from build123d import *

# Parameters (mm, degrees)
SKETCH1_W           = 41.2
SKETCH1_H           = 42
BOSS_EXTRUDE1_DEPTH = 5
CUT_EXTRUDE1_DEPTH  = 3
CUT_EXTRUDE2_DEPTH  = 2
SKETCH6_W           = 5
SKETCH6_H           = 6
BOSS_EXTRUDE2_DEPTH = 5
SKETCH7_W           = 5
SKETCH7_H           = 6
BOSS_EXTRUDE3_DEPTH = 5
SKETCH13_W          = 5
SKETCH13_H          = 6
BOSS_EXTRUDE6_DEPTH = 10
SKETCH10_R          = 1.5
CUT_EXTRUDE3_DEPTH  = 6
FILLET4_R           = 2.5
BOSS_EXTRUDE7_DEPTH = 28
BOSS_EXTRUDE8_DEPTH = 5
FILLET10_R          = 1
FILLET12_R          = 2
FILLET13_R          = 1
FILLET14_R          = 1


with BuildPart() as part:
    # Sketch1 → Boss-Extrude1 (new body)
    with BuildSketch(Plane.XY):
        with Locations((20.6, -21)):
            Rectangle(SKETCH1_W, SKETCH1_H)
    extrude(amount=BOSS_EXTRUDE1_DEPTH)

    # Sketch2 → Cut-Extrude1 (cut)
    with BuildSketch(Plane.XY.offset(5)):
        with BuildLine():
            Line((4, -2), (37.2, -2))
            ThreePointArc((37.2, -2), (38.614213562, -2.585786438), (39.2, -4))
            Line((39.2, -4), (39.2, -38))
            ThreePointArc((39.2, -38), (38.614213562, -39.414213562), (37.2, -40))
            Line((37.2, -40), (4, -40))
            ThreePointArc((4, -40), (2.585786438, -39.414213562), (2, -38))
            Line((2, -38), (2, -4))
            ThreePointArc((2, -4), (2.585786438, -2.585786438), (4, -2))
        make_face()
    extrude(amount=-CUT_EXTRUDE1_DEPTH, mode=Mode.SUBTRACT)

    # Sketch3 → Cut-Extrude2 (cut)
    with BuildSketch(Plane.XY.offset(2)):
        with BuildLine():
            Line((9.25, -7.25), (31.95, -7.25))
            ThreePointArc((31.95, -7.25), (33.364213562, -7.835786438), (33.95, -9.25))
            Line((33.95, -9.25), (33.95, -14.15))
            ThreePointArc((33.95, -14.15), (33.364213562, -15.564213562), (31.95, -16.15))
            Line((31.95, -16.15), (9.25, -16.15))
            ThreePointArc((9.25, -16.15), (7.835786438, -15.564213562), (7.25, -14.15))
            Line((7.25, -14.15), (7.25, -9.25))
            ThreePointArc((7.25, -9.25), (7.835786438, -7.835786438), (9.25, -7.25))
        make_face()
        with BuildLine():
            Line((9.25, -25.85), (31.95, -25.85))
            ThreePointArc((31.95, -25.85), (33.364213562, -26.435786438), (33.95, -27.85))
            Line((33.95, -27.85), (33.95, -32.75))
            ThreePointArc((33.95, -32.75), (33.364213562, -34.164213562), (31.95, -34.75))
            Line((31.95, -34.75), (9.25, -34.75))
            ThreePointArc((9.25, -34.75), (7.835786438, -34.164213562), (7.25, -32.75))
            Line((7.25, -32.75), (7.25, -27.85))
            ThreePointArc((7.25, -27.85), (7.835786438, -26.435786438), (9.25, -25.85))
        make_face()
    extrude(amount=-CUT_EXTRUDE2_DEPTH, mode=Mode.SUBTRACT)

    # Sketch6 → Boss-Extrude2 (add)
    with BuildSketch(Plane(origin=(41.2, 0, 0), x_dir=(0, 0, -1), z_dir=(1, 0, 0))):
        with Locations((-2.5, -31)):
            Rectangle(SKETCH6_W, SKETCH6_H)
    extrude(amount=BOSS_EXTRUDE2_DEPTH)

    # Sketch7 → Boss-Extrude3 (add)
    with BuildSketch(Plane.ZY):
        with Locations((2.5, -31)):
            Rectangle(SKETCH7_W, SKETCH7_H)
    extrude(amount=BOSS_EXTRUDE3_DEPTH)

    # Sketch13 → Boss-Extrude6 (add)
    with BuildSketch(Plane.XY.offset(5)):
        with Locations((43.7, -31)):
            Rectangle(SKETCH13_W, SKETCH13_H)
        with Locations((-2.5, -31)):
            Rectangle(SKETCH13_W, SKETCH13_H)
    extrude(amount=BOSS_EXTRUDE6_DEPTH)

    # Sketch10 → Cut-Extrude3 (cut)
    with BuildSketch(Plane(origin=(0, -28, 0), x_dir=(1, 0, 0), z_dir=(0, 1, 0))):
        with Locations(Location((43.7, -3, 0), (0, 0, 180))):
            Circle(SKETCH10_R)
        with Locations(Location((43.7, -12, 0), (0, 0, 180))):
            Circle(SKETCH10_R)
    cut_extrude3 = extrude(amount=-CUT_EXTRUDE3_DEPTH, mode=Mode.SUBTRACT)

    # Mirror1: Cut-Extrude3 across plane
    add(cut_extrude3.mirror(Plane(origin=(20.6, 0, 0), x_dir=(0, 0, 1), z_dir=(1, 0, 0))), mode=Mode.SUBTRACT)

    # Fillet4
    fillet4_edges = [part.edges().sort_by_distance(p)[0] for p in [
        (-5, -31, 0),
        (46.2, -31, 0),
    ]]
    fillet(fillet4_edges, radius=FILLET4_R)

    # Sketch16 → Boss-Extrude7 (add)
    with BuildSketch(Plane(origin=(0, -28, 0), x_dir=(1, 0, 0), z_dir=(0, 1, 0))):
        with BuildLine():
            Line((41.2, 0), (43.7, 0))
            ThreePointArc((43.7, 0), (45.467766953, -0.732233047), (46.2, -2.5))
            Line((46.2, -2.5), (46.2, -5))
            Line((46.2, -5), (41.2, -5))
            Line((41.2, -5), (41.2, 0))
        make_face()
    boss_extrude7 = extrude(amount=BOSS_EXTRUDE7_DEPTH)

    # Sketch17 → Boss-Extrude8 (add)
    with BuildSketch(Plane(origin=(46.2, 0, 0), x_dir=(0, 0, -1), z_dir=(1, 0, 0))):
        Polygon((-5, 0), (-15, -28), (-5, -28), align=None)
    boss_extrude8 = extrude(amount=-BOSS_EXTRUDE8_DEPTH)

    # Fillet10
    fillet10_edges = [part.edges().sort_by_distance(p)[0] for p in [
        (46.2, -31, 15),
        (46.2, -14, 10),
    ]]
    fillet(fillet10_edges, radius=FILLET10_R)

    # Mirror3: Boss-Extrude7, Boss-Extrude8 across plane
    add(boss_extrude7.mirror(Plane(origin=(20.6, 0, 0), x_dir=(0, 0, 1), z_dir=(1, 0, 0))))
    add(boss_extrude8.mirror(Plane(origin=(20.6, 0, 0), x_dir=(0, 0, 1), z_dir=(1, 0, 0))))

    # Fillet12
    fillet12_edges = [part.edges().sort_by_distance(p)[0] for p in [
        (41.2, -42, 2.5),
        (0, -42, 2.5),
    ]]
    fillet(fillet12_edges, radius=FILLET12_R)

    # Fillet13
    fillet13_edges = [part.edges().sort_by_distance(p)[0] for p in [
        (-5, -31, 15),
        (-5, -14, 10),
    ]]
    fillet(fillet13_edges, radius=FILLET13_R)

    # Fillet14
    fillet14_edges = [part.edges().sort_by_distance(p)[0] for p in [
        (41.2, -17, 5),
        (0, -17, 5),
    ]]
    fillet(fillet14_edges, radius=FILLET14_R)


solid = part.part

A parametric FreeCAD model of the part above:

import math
import FreeCAD as App
import Part
import Sketcher

V = App.Vector
Q = App.Units.Quantity


def edges_at(feature, points):
    """Names of the edges that pass closest to the given points."""
    edges = feature.Shape.Edges
    near = lambda p: min(range(len(edges)), key=lambda i: edges[i].distToShape(Part.Vertex(*p))[0])
    return sorted({f"Edge{near(p) + 1}" for p in points})

doc = App.newDocument("Part")
body = doc.addObject("PartDesign::Body", "Body")

sketch1 = body.newObject("Sketcher::SketchObject", "Sketch")
sketch1.AttachmentSupport = (doc.getObject("XY_Plane"), [""])
sketch1.MapMode = "FlatFace"
sketch1.addGeometry([
    Part.LineSegment(V(0, 0, 0), V(0, -42, 0)),
    Part.LineSegment(V(0, -42, 0), V(41, -42, 0)),
    Part.LineSegment(V(41, -42, 0), V(41, 0, 0)),
    Part.LineSegment(V(41, 0, 0), V(0, 0, 0)),
], False)
sketch1.addConstraint([
    Sketcher.Constraint("Coincident", 0, 2, 1, 1),
    Sketcher.Constraint("Coincident", 1, 2, 2, 1),
    Sketcher.Constraint("Coincident", 2, 2, 3, 1),
    Sketcher.Constraint("Coincident", 3, 2, 0, 1),
    Sketcher.Constraint("Vertical", 0),
    Sketcher.Constraint("Horizontal", 1),
    Sketcher.Constraint("Vertical", 2),
    Sketcher.Constraint("Horizontal", 3),
    Sketcher.Constraint("Coincident", 3, 2, -1, 1),
    Sketcher.Constraint("DistanceY", 0, 2, 0, 1, Q("42 mm")),
    Sketcher.Constraint("DistanceX", 1, 1, 1, 2, Q("41.2 mm")),
])
pad1 = body.newObject("PartDesign::Pad", "Pad")
pad1.Profile = sketch1
pad1.Length = 5

sketch2 = body.newObject("Sketcher::SketchObject", "Sketch001")
sketch2.AttachmentSupport = (doc.getObject("XY_Plane"), [""])
sketch2.MapMode = "FlatFace"
sketch2.AttachmentOffset = App.Placement(V(0, 0, 5), App.Rotation())
sketch2.addGeometry([
    Part.LineSegment(V(37.2, -2, 0), V(4, -2, 0)),
    Part.ArcOfCircle(Part.Circle(V(4, -4, 0), V(0, 0, 1), 2), math.radians(90), math.radians(180)),
    Part.LineSegment(V(2, -4, 0), V(2, -38, 0)),
    Part.ArcOfCircle(Part.Circle(V(4, -38, 0), V(0, 0, 1), 2), math.radians(-180), math.radians(-90)),
    Part.LineSegment(V(4, -40, 0), V(37.2, -40, 0)),
    Part.ArcOfCircle(Part.Circle(V(37.2, -38, 0), V(0, 0, 1), 2), math.radians(-90), math.radians(0)),
    Part.LineSegment(V(39.2, -38, 0), V(39.2, -4, 0)),
    Part.ArcOfCircle(Part.Circle(V(37.2, -4, 0), V(0, 0, 1), 2), math.radians(0), math.radians(90)),
], False)
sketch2.addConstraint([
    Sketcher.Constraint("Tangent", 0, 2, 1, 1),
    Sketcher.Constraint("Tangent", 1, 2, 2, 1),
    Sketcher.Constraint("Tangent", 2, 2, 3, 1),
    Sketcher.Constraint("Tangent", 3, 2, 4, 1),
    Sketcher.Constraint("Tangent", 4, 2, 5, 1),
    Sketcher.Constraint("Tangent", 5, 2, 6, 1),
    Sketcher.Constraint("Tangent", 6, 2, 7, 1),
    Sketcher.Constraint("Tangent", 7, 2, 0, 1),
    Sketcher.Constraint("Horizontal", 0),
    Sketcher.Constraint("Vertical", 2),
    Sketcher.Constraint("Horizontal", 4),
    Sketcher.Constraint("Vertical", 6),
    Sketcher.Constraint("Equal", 1, 3),
    Sketcher.Constraint("Equal", 3, 5),
    Sketcher.Constraint("Equal", 5, 7),
    Sketcher.Constraint("Radius", 1, Q("2 mm")),
    Sketcher.Constraint("DistanceY", 2, 2, 2, 1, Q("34 mm")),
    Sketcher.Constraint("DistanceX", 0, 2, 0, 1, Q("33.2 mm")),
    Sketcher.Constraint("DistanceX", -1, 1, 1, 3, Q("4 mm")),
    Sketcher.Constraint("DistanceY", 1, 3, -1, 1, Q("4 mm")),
])
pocket1 = body.newObject("PartDesign::Pocket", "Pocket")
pocket1.Profile = sketch2
pocket1.Length = 3

sketch3 = body.newObject("Sketcher::SketchObject", "Sketch002")
sketch3.AttachmentSupport = (doc.getObject("XY_Plane"), [""])
sketch3.MapMode = "FlatFace"
sketch3.AttachmentOffset = App.Placement(V(0, 0, 2), App.Rotation())
sketch3.addGeometry([
    Part.LineSegment(V(31.9, -7.2, 0), V(9.2, -7.2, 0)),
    Part.ArcOfCircle(Part.Circle(V(9.3, -9.3, 0), V(0, 0, 1), 2), math.radians(90), math.radians(180)),
    Part.LineSegment(V(7.2, -9.2, 0), V(7.2, -14.2, 0)),
    Part.ArcOfCircle(Part.Circle(V(9.3, -14.1, 0), V(0, 0, 1), 2), math.radians(-180), math.radians(-90)),
    Part.LineSegment(V(9.2, -16.1, 0), V(31.9, -16.1, 0)),
    Part.ArcOfCircle(Part.Circle(V(31.9, -14.1, 0), V(0, 0, 1), 2), math.radians(-90), math.radians(0)),
    Part.LineSegment(V(34, -14.2, 0), V(34, -9.2, 0)),
    Part.ArcOfCircle(Part.Circle(V(31.9, -9.3, 0), V(0, 0, 1), 2), math.radians(0), math.radians(90)),
    Part.LineSegment(V(31.9, -25.9, 0), V(9.2, -25.9, 0)),
    Part.ArcOfCircle(Part.Circle(V(9.3, -27.9, 0), V(0, 0, 1), 2), math.radians(90), math.radians(180)),
    Part.LineSegment(V(7.2, -27.9, 0), V(7.2, -32.8, 0)),
    Part.ArcOfCircle(Part.Circle(V(9.3, -32.7, 0), V(0, 0, 1), 2), math.radians(-180), math.radians(-90)),
    Part.LineSegment(V(9.2, -34.8, 0), V(31.9, -34.8, 0)),
    Part.ArcOfCircle(Part.Circle(V(31.9, -32.7, 0), V(0, 0, 1), 2), math.radians(-90), math.radians(0)),
    Part.LineSegment(V(34, -32.8, 0), V(34, -27.9, 0)),
    Part.ArcOfCircle(Part.Circle(V(31.9, -27.9, 0), V(0, 0, 1), 2), math.radians(0), math.radians(90)),
], False)
sketch3.addConstraint([
    Sketcher.Constraint("Tangent", 0, 2, 1, 1),
    Sketcher.Constraint("Tangent", 1, 2, 2, 1),
    Sketcher.Constraint("Tangent", 2, 2, 3, 1),
    Sketcher.Constraint("Tangent", 3, 2, 4, 1),
    Sketcher.Constraint("Tangent", 4, 2, 5, 1),
    Sketcher.Constraint("Tangent", 5, 2, 6, 1),
    Sketcher.Constraint("Tangent", 6, 2, 7, 1),
    Sketcher.Constraint("Tangent", 7, 2, 0, 1),
    Sketcher.Constraint("Tangent", 8, 2, 9, 1),
    Sketcher.Constraint("Tangent", 9, 2, 10, 1),
    Sketcher.Constraint("Tangent", 10, 2, 11, 1),
    Sketcher.Constraint("Tangent", 11, 2, 12, 1),
    Sketcher.Constraint("Tangent", 12, 2, 13, 1),
    Sketcher.Constraint("Tangent", 13, 2, 14, 1),
    Sketcher.Constraint("Tangent", 14, 2, 15, 1),
    Sketcher.Constraint("Tangent", 15, 2, 8, 1),
    Sketcher.Constraint("Horizontal", 0),
    Sketcher.Constraint("Vertical", 2),
    Sketcher.Constraint("Horizontal", 4),
    Sketcher.Constraint("Vertical", 6),
    Sketcher.Constraint("Horizontal", 8),
    Sketcher.Constraint("Vertical", 10),
    Sketcher.Constraint("Horizontal", 12),
    Sketcher.Constraint("Vertical", 14),
    Sketcher.Constraint("Equal", 1, 3),
    Sketcher.Constraint("Equal", 3, 5),
    Sketcher.Constraint("Equal", 5, 7),
    Sketcher.Constraint("Equal", 7, 9),
    Sketcher.Constraint("Equal", 9, 11),
    Sketcher.Constraint("Equal", 11, 13),
    Sketcher.Constraint("Equal", 13, 15),
    Sketcher.Constraint("Vertical", 3, 3, 9, 3),
    Sketcher.Constraint("Vertical", 7, 3, 13, 3),
    Sketcher.Constraint("Equal", 6, 10),
    Sketcher.Constraint("Radius", 1, Q("2 mm")),
    Sketcher.Constraint("DistanceX", 0, 2, 0, 1, Q("22.7 mm")),
    Sketcher.Constraint("DistanceY", 2, 2, 2, 1, Q("4.9 mm")),
    Sketcher.Constraint("DistanceY", 9, 3, 3, 3, Q("13.7 mm")),
    Sketcher.Constraint("DistanceX", -1, 1, 1, 3, Q("9.25 mm")),
    Sketcher.Constraint("DistanceY", 1, 3, -1, 1, Q("9.25 mm")),
])
pocket2 = body.newObject("PartDesign::Pocket", "Pocket001")
pocket2.Profile = sketch3
pocket2.Length = 2

sketch4 = body.newObject("Sketcher::SketchObject", "Sketch003")
sketch4.AttachmentSupport = (doc.getObject("YZ_Plane"), [""])
sketch4.MapMode = "FlatFace"
sketch4.AttachmentOffset = App.Placement(V(0, 0, 41.2), App.Rotation())
sketch4.addGeometry([
    Part.LineSegment(V(-28, 5, 0), V(-34, 5, 0)),
    Part.LineSegment(V(-34, 5, 0), V(-34, 0, 0)),
    Part.LineSegment(V(-34, 0, 0), V(-28, 0, 0)),
    Part.LineSegment(V(-28, 0, 0), V(-28, 5, 0)),
], False)
sketch4.addConstraint([
    Sketcher.Constraint("Coincident", 0, 2, 1, 1),
    Sketcher.Constraint("Coincident", 1, 2, 2, 1),
    Sketcher.Constraint("Coincident", 2, 2, 3, 1),
    Sketcher.Constraint("Coincident", 3, 2, 0, 1),
    Sketcher.Constraint("Horizontal", 0),
    Sketcher.Constraint("Vertical", 1),
    Sketcher.Constraint("Horizontal", 2),
    Sketcher.Constraint("Vertical", 3),
    Sketcher.Constraint("PointOnObject", 1, 2, -1),
    Sketcher.Constraint("DistanceX", 0, 2, 0, 1, Q("6 mm")),
    Sketcher.Constraint("DistanceY", 1, 2, 1, 1, Q("5 mm")),
    Sketcher.Constraint("DistanceX", 0, 2, -1, 1, Q("34 mm")),
])
pad2 = body.newObject("PartDesign::Pad", "Pad001")
pad2.Profile = sketch4
pad2.Length = 5

sketch5 = body.newObject("Sketcher::SketchObject", "Sketch004")
sketch5.AttachmentSupport = (doc.getObject("YZ_Plane"), [""])
sketch5.MapMode = "FlatFace"
sketch5.addGeometry([
    Part.LineSegment(V(-28, 0, 0), V(-34, 0, 0)),
    Part.LineSegment(V(-34, 0, 0), V(-34, 5, 0)),
    Part.LineSegment(V(-34, 5, 0), V(-28, 5, 0)),
    Part.LineSegment(V(-28, 5, 0), V(-28, 0, 0)),
], False)
sketch5.addConstraint([
    Sketcher.Constraint("Coincident", 0, 2, 1, 1),
    Sketcher.Constraint("Coincident", 1, 2, 2, 1),
    Sketcher.Constraint("Coincident", 2, 2, 3, 1),
    Sketcher.Constraint("Coincident", 3, 2, 0, 1),
    Sketcher.Constraint("Horizontal", 0),
    Sketcher.Constraint("Vertical", 1),
    Sketcher.Constraint("Horizontal", 2),
    Sketcher.Constraint("Vertical", 3),
    Sketcher.Constraint("PointOnObject", 0, 2, -1),
    Sketcher.Constraint("DistanceX", 0, 2, 0, 1, Q("6 mm")),
    Sketcher.Constraint("DistanceY", 1, 1, 1, 2, Q("5 mm")),
    Sketcher.Constraint("DistanceX", 0, 2, -1, 1, Q("34 mm")),
])
pad3 = body.newObject("PartDesign::Pad", "Pad002")
pad3.Profile = sketch5
pad3.Length = 5
pad3.Reversed = True

sketch6 = body.newObject("Sketcher::SketchObject", "Sketch005")
sketch6.AttachmentSupport = (doc.getObject("XY_Plane"), [""])
sketch6.MapMode = "FlatFace"
sketch6.AttachmentOffset = App.Placement(V(0, 0, 5), App.Rotation())
sketch6.addGeometry([
    Part.LineSegment(V(41, -28, 0), V(41, -34, 0)),
    Part.LineSegment(V(41, -34, 0), V(46, -34, 0)),
    Part.LineSegment(V(46, -34, 0), V(46, -28, 0)),
    Part.LineSegment(V(46, -28, 0), V(41, -28, 0)),
    Part.LineSegment(V(-5, -28, 0), V(-5, -34, 0)),
    Part.LineSegment(V(-5, -34, 0), V(0, -34, 0)),
    Part.LineSegment(V(0, -34, 0), V(0, -28, 0)),
    Part.LineSegment(V(0, -28, 0), V(-5, -28, 0)),
], False)
sketch6.addConstraint([
    Sketcher.Constraint("Coincident", 0, 2, 1, 1),
    Sketcher.Constraint("Coincident", 1, 2, 2, 1),
    Sketcher.Constraint("Coincident", 2, 2, 3, 1),
    Sketcher.Constraint("Coincident", 3, 2, 0, 1),
    Sketcher.Constraint("Coincident", 4, 2, 5, 1),
    Sketcher.Constraint("Coincident", 5, 2, 6, 1),
    Sketcher.Constraint("Coincident", 6, 2, 7, 1),
    Sketcher.Constraint("Coincident", 7, 2, 4, 1),
    Sketcher.Constraint("Vertical", 0),
    Sketcher.Constraint("Horizontal", 1),
    Sketcher.Constraint("Vertical", 2),
    Sketcher.Constraint("Horizontal", 3),
    Sketcher.Constraint("Vertical", 4),
    Sketcher.Constraint("Horizontal", 5),
    Sketcher.Constraint("Vertical", 6),
    Sketcher.Constraint("Horizontal", 7),
    Sketcher.Constraint("PointOnObject", 5, 2, -2),
    Sketcher.Constraint("Horizontal", 1, 2, 4, 2),
    Sketcher.Constraint("Horizontal", 3, 2, 6, 2),
    Sketcher.Constraint("Equal", 3, 5),
    Sketcher.Constraint("DistanceX", 1, 1, 1, 2, Q("5 mm")),
    Sketcher.Constraint("DistanceY", 0, 2, 0, 1, Q("6 mm")),
    Sketcher.Constraint("DistanceY", 0, 2, -1, 1, Q("34 mm")),
    Sketcher.Constraint("DistanceX", -1, 1, 0, 2, Q("41.2 mm")),
])
pad4 = body.newObject("PartDesign::Pad", "Pad003")
pad4.Profile = sketch6
pad4.Length = 10

sketch7 = body.newObject("Sketcher::SketchObject", "Sketch006")
sketch7.AttachmentSupport = (doc.getObject("XZ_Plane"), [""])
sketch7.MapMode = "FlatFace"
sketch7.AttachmentOffset = App.Placement(V(0, 0, 28), App.Rotation())
sketch7.addGeometry([
    Part.Circle(V(43.7, 3, 0), V(0, 0, 1), 1.5),
    Part.Circle(V(43.7, 12, 0), V(0, 0, 1), 1.5),
], False)
sketch7.addConstraint([
    Sketcher.Constraint("Equal", 0, 1),
    Sketcher.Constraint("Vertical", 0, 3, 1, 3),
    Sketcher.Constraint("Diameter", 0, Q("3 mm")),
    Sketcher.Constraint("DistanceY", -1, 1, 0, 3, Q("3 mm")),
    Sketcher.Constraint("DistanceY", -1, 1, 1, 3, Q("12 mm")),
    Sketcher.Constraint("DistanceX", -1, 1, 0, 3, Q("43.7 mm")),
])
pocket3 = body.newObject("PartDesign::Pocket", "Pocket002")
pocket3.Profile = sketch7
pocket3.Length = 6
pocket3.Reversed = True
doc.recompute()

datumplane = body.newObject("PartDesign::Plane", "DatumPlane")
datumplane.AttachmentSupport = (doc.getObject("YZ_Plane"), [""])
datumplane.MapMode = "FlatFace"
datumplane.AttachmentOffset = App.Placement(V(0, 0, 20.6), App.Rotation())
mirrored = body.newObject("PartDesign::Mirrored", "Mirrored")
mirrored.Originals = [pocket3]
mirrored.MirrorPlane = (datumplane, [""])
body.Tip = mirrored
doc.recompute()

fillet = body.newObject("PartDesign::Fillet", "Fillet")
fillet.Base = (mirrored, edges_at(mirrored, [(-5, -31, 0), (46.2, -31, 0)]))
fillet.Radius = 2.5

sketch8 = body.newObject("Sketcher::SketchObject", "Sketch007")
sketch8.AttachmentSupport = (doc.getObject("XZ_Plane"), [""])
sketch8.MapMode = "FlatFace"
sketch8.AttachmentOffset = App.Placement(V(0, 0, 28), App.Rotation())
sketch8.addGeometry([
    Part.LineSegment(V(43.7, 0, 0), V(41.2, 0, 0)),
    Part.LineSegment(V(41.2, 0, 0), V(41.2, 5, 0)),
    Part.LineSegment(V(41.2, 5, 0), V(46.2, 5, 0)),
    Part.LineSegment(V(46.2, 5, 0), V(46.2, 2.5, 0)),
    Part.ArcOfCircle(Part.Circle(V(43.7, 2.5, 0), V(0, 0, 1), 2.5), math.radians(-90), math.radians(0)),
], False)
sketch8.addConstraint([
    Sketcher.Constraint("Coincident", 0, 2, 1, 1),
    Sketcher.Constraint("Coincident", 1, 2, 2, 1),
    Sketcher.Constraint("Coincident", 2, 2, 3, 1),
    Sketcher.Constraint("Tangent", 3, 2, 4, 2),
    Sketcher.Constraint("Tangent", 4, 1, 0, 1),
    Sketcher.Constraint("Horizontal", 0),
    Sketcher.Constraint("Vertical", 1),
    Sketcher.Constraint("Horizontal", 2),
    Sketcher.Constraint("Vertical", 3),
    Sketcher.Constraint("PointOnObject", 0, 2, -1),
    Sketcher.Constraint("Equal", 2, 1),
    Sketcher.Constraint("Radius", 4, Q("2.5 mm")),
    Sketcher.Constraint("DistanceX", 2, 1, 2, 2, Q("5 mm")),
    Sketcher.Constraint("DistanceX", -1, 1, 4, 3, Q("43.7 mm")),
])
pad5 = body.newObject("PartDesign::Pad", "Pad004")
pad5.Profile = sketch8
pad5.Length = 28
pad5.Reversed = True

sketch9 = body.newObject("Sketcher::SketchObject", "Sketch008")
sketch9.AttachmentSupport = (doc.getObject("YZ_Plane"), [""])
sketch9.MapMode = "FlatFace"
sketch9.AttachmentOffset = App.Placement(V(0, 0, 46.2), App.Rotation())
sketch9.addGeometry([
    Part.LineSegment(V(0, 5, 0), V(-28, 15, 0)),
    Part.LineSegment(V(-28, 15, 0), V(-28, 5, 0)),
    Part.LineSegment(V(-28, 5, 0), V(0, 5, 0)),
], False)
sketch9.addConstraint([
    Sketcher.Constraint("Coincident", 0, 2, 1, 1),
    Sketcher.Constraint("Coincident", 1, 2, 2, 1),
    Sketcher.Constraint("Coincident", 2, 2, 0, 1),
    Sketcher.Constraint("Vertical", 1),
    Sketcher.Constraint("Horizontal", 2),
    Sketcher.Constraint("PointOnObject", 2, 2, -2),
    Sketcher.Constraint("DistanceX", 2, 1, 2, 2, Q("28 mm")),
    Sketcher.Constraint("DistanceY", 1, 2, 1, 1, Q("10 mm")),
    Sketcher.Constraint("DistanceY", -1, 1, 0, 2, Q("15 mm")),
])
pad6 = body.newObject("PartDesign::Pad", "Pad005")
pad6.Profile = sketch9
pad6.Length = 5
pad6.Reversed = True
doc.recompute()

fillet2 = body.newObject("PartDesign::Fillet", "Fillet001")
fillet2.Base = (pad6, edges_at(pad6, [(46.2, -31, 15), (46.2, -14, 10)]))
fillet2.Radius = 1
doc.recompute()

datumplane2 = body.newObject("PartDesign::Plane", "DatumPlane001")
datumplane2.AttachmentSupport = (doc.getObject("YZ_Plane"), [""])
datumplane2.MapMode = "FlatFace"
datumplane2.AttachmentOffset = App.Placement(V(0, 0, 20.6), App.Rotation())
mirrored2 = body.newObject("PartDesign::Mirrored", "Mirrored001")
mirrored2.Originals = [pad5, pad6]
mirrored2.MirrorPlane = (datumplane2, [""])
body.Tip = mirrored2
doc.recompute()

fillet3 = body.newObject("PartDesign::Fillet", "Fillet002")
fillet3.Base = (mirrored2, edges_at(mirrored2, [(41.2, -42, 2.5), (0, -42, 2.5)]))
fillet3.Radius = 2
doc.recompute()

fillet4 = body.newObject("PartDesign::Fillet", "Fillet003")
fillet4.Base = (fillet3, edges_at(fillet3, [(-5, -31, 15), (-5, -14, 10)]))
fillet4.Radius = 1
doc.recompute()

fillet5 = body.newObject("PartDesign::Fillet", "Fillet004")
fillet5.Base = (fillet4, edges_at(fillet4, [(41.2, -17, 5), (0, -17, 5)]))
fillet5.Radius = 1

doc.recompute()
